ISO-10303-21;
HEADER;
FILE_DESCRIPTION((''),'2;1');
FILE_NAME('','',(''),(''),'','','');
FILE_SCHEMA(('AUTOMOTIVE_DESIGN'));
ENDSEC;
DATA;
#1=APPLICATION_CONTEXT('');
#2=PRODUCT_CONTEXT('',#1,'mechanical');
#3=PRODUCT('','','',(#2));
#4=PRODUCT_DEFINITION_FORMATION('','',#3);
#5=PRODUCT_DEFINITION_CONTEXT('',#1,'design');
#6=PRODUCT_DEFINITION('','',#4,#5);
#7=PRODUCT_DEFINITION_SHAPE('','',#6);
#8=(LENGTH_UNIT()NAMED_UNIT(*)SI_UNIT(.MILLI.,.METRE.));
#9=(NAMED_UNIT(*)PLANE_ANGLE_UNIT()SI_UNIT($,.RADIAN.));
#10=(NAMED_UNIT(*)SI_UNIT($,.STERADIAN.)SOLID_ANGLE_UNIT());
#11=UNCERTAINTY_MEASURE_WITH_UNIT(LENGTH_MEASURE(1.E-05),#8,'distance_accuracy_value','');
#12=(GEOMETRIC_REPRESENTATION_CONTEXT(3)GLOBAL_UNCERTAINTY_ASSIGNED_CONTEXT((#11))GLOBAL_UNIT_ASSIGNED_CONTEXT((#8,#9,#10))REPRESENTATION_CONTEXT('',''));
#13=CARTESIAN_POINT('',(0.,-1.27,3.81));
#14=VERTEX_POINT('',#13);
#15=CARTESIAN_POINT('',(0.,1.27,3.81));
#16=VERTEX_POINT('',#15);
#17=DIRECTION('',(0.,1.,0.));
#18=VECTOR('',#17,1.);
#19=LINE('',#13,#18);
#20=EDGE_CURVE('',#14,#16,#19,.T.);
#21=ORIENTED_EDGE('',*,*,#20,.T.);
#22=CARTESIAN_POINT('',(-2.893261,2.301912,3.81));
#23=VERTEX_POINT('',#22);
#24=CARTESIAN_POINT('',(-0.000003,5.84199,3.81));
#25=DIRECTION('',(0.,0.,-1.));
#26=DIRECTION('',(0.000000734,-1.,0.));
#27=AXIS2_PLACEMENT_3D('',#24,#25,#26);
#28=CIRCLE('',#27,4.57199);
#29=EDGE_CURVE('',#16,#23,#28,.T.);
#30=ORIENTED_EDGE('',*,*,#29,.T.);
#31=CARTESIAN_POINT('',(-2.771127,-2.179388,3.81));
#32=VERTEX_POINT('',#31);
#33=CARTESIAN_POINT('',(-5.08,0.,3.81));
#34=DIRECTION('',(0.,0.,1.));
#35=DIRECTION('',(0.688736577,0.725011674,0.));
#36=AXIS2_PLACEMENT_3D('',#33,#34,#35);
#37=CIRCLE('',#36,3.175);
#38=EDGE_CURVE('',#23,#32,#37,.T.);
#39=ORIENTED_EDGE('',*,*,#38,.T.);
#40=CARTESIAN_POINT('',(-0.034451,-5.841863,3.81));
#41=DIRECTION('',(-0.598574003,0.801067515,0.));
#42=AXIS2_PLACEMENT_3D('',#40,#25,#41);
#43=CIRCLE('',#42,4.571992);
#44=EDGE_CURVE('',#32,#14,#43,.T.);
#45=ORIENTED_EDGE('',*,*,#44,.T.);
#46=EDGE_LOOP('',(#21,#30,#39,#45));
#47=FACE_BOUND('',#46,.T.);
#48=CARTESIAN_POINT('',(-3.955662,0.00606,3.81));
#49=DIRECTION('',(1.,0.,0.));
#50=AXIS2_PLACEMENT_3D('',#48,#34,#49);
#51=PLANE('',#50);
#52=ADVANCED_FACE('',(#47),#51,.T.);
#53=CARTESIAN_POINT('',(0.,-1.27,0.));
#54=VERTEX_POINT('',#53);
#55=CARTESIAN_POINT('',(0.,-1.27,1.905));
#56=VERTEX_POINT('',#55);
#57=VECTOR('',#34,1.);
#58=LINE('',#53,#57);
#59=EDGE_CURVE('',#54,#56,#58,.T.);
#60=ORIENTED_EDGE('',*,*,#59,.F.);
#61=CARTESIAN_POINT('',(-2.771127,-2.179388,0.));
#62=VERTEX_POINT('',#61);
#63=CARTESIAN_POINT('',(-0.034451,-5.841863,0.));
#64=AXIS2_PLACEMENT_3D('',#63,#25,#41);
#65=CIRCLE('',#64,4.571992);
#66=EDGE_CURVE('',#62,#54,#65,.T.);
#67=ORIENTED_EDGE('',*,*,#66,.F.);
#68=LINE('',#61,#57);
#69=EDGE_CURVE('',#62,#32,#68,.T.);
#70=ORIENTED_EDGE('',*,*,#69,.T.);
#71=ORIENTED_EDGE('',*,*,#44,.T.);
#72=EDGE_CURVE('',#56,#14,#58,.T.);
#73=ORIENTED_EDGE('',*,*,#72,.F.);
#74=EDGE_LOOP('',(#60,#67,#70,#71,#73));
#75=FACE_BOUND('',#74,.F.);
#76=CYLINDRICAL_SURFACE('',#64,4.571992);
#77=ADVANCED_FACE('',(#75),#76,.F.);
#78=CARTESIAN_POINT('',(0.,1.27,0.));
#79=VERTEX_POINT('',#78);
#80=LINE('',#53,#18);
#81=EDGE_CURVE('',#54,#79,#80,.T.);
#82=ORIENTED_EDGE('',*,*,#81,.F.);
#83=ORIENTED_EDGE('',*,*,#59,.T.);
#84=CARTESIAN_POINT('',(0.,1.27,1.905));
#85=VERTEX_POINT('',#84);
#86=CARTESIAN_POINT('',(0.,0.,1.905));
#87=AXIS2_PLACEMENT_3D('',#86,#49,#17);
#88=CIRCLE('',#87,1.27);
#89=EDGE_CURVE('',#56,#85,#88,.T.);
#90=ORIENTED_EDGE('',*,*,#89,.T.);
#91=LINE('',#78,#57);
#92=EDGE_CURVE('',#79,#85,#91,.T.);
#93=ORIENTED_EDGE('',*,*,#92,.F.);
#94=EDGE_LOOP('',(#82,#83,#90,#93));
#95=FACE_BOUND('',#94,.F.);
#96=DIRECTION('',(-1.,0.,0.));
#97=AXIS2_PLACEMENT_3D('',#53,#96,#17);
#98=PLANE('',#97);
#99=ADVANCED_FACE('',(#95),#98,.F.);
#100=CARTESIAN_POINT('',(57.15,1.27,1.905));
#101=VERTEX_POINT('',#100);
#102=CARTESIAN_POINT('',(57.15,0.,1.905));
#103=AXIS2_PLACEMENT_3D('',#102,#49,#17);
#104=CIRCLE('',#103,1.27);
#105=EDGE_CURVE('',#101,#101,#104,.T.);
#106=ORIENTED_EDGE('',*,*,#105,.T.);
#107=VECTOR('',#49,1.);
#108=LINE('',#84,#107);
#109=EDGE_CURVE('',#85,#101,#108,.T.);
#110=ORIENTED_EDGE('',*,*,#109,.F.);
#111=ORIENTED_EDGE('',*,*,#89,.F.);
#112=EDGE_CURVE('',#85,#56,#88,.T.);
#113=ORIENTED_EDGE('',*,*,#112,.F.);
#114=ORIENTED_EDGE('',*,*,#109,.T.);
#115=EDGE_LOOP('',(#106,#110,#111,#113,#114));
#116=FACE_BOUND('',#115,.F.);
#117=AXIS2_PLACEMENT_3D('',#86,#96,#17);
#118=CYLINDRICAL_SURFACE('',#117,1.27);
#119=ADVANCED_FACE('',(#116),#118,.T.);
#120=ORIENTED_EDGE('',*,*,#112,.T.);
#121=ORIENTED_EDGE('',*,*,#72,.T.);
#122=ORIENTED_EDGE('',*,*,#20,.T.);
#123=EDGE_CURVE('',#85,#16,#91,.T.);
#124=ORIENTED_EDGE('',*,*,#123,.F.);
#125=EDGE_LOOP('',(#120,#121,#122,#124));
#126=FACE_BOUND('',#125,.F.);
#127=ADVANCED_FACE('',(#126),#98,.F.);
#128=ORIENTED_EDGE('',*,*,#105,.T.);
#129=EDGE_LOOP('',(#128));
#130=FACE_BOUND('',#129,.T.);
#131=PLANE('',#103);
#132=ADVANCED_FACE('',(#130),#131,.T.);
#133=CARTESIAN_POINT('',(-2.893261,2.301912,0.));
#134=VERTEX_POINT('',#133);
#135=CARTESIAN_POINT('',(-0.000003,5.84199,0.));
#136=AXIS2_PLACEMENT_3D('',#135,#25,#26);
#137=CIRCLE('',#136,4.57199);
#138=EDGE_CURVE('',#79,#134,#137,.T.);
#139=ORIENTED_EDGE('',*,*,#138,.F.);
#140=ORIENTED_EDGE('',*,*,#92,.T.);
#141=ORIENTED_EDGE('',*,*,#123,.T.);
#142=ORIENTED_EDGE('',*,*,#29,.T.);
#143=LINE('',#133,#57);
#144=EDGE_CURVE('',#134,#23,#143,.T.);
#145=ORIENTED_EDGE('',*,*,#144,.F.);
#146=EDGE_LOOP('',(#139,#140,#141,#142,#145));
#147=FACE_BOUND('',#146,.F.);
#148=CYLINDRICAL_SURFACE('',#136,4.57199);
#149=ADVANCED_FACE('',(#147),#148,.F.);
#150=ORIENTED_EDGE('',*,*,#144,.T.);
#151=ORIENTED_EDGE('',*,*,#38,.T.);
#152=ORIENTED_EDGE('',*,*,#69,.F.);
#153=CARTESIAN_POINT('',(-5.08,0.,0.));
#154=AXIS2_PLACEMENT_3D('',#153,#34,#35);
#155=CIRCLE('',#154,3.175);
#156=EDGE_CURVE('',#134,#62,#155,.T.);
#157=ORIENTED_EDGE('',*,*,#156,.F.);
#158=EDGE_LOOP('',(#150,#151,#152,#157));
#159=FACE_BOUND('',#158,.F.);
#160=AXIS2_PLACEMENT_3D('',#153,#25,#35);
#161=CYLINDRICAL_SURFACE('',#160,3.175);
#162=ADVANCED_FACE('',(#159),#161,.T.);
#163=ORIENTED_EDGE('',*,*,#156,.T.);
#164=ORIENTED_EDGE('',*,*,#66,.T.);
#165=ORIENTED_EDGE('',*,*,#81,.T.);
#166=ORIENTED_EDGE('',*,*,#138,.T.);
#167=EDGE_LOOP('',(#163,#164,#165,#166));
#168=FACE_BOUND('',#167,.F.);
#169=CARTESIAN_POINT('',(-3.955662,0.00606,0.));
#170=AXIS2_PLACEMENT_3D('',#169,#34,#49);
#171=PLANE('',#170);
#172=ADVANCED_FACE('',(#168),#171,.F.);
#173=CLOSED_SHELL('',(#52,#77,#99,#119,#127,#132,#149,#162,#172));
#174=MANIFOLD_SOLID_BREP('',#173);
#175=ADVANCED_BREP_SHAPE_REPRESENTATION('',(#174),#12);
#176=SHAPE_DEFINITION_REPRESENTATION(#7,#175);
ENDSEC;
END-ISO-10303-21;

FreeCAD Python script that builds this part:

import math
import FreeCAD as App
import Part
import Sketcher
Q = App.Units.Quantity

doc = App.newDocument("Part")
params = doc.addObject("Spreadsheet::Sheet", "Params")
for row, (alias, value) in enumerate([
    ("sketch1_height", "0.1 in"),
    ("sketch1_radius", "0.125 in"),
    ("pad1_length", "0.15 in"),
    ("sketch2_diameter", "0.1 in"),
    ("pad2_length", "2.25 in"),
], start=1):
    params.set(f"A{row}", alias)
    params.set(f"B{row}", "=" + value)
    params.setAlias(f"B{row}", alias)

body = doc.addObject("PartDesign::Body", "Body")

# Sketch on XY plane
sketch1 = body.newObject("Sketcher::SketchObject", "Sketch")
sketch1.AttachmentSupport = (doc.getObject("XY_Plane"), [""])
sketch1.MapMode = "FlatFace"
sketch1.addGeometry(Part.ArcOfCircle(Part.Circle(App.Vector(0, 5.8, 0), App.Vector(0, 0, 1), 4.6), math.radians(-129), math.radians(-90)), False)
sketch1.addGeometry(Part.ArcOfCircle(Part.Circle(App.Vector(-5.1, 0, 0), App.Vector(0, 0, 1), 3.2), math.radians(46), math.radians(317)), False)
sketch1.addGeometry(Part.ArcOfCircle(Part.Circle(App.Vector(0, -5.8, 0), App.Vector(0, 0, 1), 4.6), math.radians(90), math.radians(127)), False)
sketch1.addGeometry(Part.LineSegment(App.Vector(0, -1.3, 0), App.Vector(0, 1.3, 0)), False)
sketch1.addConstraint(Sketcher.Constraint("Coincident", 0, 1, 1, 1))
sketch1.addConstraint(Sketcher.Constraint("Coincident", 1, 2, 2, 2))
sketch1.addConstraint(Sketcher.Constraint("Coincident", 2, 1, 3, 1))
sketch1.addConstraint(Sketcher.Constraint("Coincident", 3, 2, 0, 2))
sketch1.addConstraint(Sketcher.Constraint("Vertical", 3))
sketch1.addConstraint(Sketcher.Constraint("Symmetric", 2, 1, 3, 2, -1, 1))
sketch1.addConstraint(Sketcher.Constraint("PointOnObject", 1, 3, -1))
sketch1.addConstraint(Sketcher.Constraint("DistanceY", 3, 1, 3, 2, Q("0.1 in")))
sketch1.addConstraint(Sketcher.Constraint("Radius", 1, Q("0.125 in")))
sketch1.addConstraint(Sketcher.Constraint("DistanceX", 1, 3, -1, 1, Q("0.2 in")))
sketch1.addConstraint(Sketcher.Constraint("DistanceX", 1, 3, 0, 3, Q("0.1999999 in")))
sketch1.addConstraint(Sketcher.Constraint("Radius", 0, Q("4.57199 mm")))
sketch1.addConstraint(Sketcher.Constraint("Radius", 2, Q("4.571992 mm")))
sketch1.addConstraint(Sketcher.Constraint("DistanceY", 1, 2, 0, 1, Q("4.4813 mm")))
sketch1.setExpression("Constraints[7]", "Params.sketch1_height")
sketch1.setExpression("Constraints[8]", "Params.sketch1_radius")
pad1 = body.newObject("PartDesign::Pad", "Pad")
pad1.Profile = sketch1
pad1.setExpression("Length", "Params.pad1_length")

# Sketch on YZ plane
sketch2 = body.newObject("Sketcher::SketchObject", "Sketch001")
sketch2.AttachmentSupport = (doc.getObject("YZ_Plane"), [""])
sketch2.MapMode = "FlatFace"
sketch2.addGeometry(Part.Circle(App.Vector(0, 1.9, 0), App.Vector(0, 0, 1), 1.3), False)
sketch2.addConstraint(Sketcher.Constraint("PointOnObject", 0, 3, -2))
sketch2.addConstraint(Sketcher.Constraint("Diameter", 0, Q("0.1 in")))
sketch2.addConstraint(Sketcher.Constraint("DistanceY", -1, 1, 0, 3, Q("0.075 in")))
sketch2.setExpression("Constraints[1]", "Params.sketch2_diameter")
pad2 = body.newObject("PartDesign::Pad", "Pad001")
pad2.Profile = sketch2
pad2.setExpression("Length", "Params.pad2_length")

doc.recompute()
